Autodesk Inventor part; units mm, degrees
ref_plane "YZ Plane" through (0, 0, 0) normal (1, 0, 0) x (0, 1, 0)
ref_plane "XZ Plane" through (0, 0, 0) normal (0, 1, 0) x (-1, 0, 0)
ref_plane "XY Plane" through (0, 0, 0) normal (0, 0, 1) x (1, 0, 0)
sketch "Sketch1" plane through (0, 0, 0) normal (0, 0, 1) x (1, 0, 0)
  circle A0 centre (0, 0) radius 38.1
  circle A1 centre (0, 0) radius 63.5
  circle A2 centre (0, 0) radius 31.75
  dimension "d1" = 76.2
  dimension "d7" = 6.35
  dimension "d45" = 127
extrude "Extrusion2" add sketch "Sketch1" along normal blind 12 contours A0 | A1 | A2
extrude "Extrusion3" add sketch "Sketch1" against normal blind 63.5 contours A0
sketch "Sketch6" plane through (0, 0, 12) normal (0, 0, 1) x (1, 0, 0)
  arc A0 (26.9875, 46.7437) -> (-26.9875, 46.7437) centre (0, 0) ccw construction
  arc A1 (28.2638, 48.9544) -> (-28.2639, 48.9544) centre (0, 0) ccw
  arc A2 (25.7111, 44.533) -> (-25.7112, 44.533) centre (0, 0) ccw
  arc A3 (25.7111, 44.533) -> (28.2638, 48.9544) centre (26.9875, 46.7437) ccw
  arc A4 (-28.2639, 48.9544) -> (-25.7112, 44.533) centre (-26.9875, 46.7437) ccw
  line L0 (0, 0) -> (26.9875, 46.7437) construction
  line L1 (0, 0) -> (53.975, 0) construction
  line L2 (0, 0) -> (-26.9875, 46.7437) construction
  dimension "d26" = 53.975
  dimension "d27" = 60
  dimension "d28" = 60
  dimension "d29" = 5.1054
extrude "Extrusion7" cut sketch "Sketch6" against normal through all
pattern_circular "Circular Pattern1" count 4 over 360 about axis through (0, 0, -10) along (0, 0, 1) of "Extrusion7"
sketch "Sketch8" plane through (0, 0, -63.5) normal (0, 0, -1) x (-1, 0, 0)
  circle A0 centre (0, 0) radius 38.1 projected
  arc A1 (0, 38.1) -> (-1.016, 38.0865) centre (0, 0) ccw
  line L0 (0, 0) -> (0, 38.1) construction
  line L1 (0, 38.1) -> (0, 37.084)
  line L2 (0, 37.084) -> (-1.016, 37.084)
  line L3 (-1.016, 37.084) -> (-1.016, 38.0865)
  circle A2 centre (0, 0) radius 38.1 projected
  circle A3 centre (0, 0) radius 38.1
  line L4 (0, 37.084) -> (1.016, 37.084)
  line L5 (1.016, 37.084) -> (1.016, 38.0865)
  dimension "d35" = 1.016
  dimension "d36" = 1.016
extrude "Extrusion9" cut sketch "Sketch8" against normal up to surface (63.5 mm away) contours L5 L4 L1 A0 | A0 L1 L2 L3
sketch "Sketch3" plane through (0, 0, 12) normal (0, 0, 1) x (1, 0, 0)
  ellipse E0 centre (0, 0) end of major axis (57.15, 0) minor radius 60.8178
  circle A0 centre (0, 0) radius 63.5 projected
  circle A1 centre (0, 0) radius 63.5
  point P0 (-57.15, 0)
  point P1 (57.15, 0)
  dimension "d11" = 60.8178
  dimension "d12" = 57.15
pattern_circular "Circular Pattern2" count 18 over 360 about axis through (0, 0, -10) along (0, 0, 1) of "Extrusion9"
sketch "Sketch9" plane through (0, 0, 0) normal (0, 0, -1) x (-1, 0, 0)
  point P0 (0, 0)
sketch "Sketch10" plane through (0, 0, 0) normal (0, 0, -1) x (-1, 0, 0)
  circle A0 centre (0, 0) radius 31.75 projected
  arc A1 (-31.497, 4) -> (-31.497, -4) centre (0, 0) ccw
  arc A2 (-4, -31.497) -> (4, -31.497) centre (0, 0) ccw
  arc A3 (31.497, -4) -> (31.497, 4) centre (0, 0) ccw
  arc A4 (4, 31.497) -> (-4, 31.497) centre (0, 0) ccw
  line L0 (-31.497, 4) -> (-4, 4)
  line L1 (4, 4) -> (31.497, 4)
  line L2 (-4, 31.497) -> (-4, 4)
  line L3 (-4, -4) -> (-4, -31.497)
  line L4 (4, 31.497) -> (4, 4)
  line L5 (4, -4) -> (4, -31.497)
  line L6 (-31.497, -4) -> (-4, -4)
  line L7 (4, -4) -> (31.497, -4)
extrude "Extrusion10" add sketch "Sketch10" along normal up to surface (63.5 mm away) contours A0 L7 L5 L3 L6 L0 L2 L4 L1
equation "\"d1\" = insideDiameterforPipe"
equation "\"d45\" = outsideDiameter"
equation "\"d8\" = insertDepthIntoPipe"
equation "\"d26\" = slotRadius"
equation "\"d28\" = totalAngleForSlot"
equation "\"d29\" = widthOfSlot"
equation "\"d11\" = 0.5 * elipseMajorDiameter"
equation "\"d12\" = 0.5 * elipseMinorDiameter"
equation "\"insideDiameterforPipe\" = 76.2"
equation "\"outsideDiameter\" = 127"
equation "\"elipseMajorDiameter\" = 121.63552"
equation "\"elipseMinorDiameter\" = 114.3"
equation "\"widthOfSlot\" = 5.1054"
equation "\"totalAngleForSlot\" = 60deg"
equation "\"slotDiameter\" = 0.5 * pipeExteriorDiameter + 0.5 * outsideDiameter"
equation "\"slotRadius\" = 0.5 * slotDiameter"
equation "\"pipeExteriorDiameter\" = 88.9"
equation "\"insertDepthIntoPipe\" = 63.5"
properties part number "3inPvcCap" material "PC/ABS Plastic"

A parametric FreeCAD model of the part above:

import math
import FreeCAD as App
import Part
import Sketcher
Q = App.Units.Quantity

doc = App.newDocument("Part")
params = doc.addObject("Spreadsheet::Sheet", "Params")
for row, (alias, value) in enumerate([
    ("sketch1_diameter", "5 in"),
    ("pad1_length", "12 mm"),
    ("sketch2_diameter", "3 in"),
    ("sketch2_diameter2", "2.5 in"),
    ("pad2_length", "2.5 in"),
    ("sketch4_radius", "1.5 in"),
    ("pocket2_length", "2.5 in"),
    ("sketch5_radius", "1.25 in"),
    ("pad3_length", "2.5 in"),
], start=1):
    params.set(f"A{row}", alias)
    params.set(f"B{row}", "=" + value)
    params.setAlias(f"B{row}", alias)

body = doc.addObject("PartDesign::Body", "Body")

# Sketch on XY plane
sketch1 = doc.addObject("Sketcher::SketchObject", "Sketch")
body.addObject(sketch1)
sketch1.AttachmentSupport = (doc.XY_Plane, [""])
sketch1.MapMode = "FlatFace"
sketch1.addGeometry(Part.Circle(App.Vector(0, 0, 0), App.Vector(0, 0, 1), 63.5), False)
sketch1.addConstraint(Sketcher.Constraint("Coincident", 0, 3, -1, 1))
sketch1.addConstraint(Sketcher.Constraint("Diameter", 0, Q("5 in")))
sketch1.setExpression("Constraints[1]", "Params.sketch1_diameter")
pad1 = doc.addObject("PartDesign::Pad", "Pad")
body.addObject(pad1)
pad1.Profile = sketch1
pad1.setExpression("Length", "Params.pad1_length")

# Sketch on XY plane
sketch2 = doc.addObject("Sketcher::SketchObject", "Sketch001")
body.addObject(sketch2)
sketch2.AttachmentSupport = (doc.XY_Plane, [""])
sketch2.MapMode = "FlatFace"
sketch2.addGeometry(Part.Circle(App.Vector(0, 0, 0), App.Vector(0, 0, 1), 38.1), False)
sketch2.addGeometry(Part.Circle(App.Vector(0, 0, 0), App.Vector(0, 0, 1), 31.75), False)
sketch2.addConstraint(Sketcher.Constraint("Coincident", 0, 3, -1, 1))
sketch2.addConstraint(Sketcher.Constraint("Coincident", 1, 3, -1, 1))
sketch2.addConstraint(Sketcher.Constraint("Diameter", 0, Q("3 in")))
sketch2.addConstraint(Sketcher.Constraint("Diameter", 1, Q("2.5 in")))
sketch2.setExpression("Constraints[2]", "Params.sketch2_diameter")
sketch2.setExpression("Constraints[3]", "Params.sketch2_diameter2")
pad2 = doc.addObject("PartDesign::Pad", "Pad001")
body.addObject(pad2)
pad2.Profile = sketch2
pad2.setExpression("Length", "Params.pad2_length")
pad2.Reversed = True

# Sketch on XY plane
sketch3 = doc.addObject("Sketcher::SketchObject", "Sketch002")
body.addObject(sketch3)
sketch3.AttachmentSupport = (doc.XY_Plane, [""])
sketch3.MapMode = "FlatFace"
sketch3.AttachmentOffset = App.Placement(App.Vector(0, 0, 12), App.Rotation())
sketch3.addGeometry(Part.ArcOfCircle(Part.Circle(App.Vector(26.9875, 46.7437, 0), App.Vector(0, 0, 1), 2.552722), math.radians(-120.001006), math.radians(60.000938)), False)
sketch3.addGeometry(Part.ArcOfCircle(Part.Circle(App.Vector(0, 0, 0), App.Vector(0, 0, 1), 56.527654), math.radians(60.000032), math.radians(120.000056)), False)
sketch3.addGeometry(Part.ArcOfCircle(Part.Circle(App.Vector(-26.9875, 46.7437, 0), App.Vector(0, 0, 1), 2.552722), math.radians(120.001006), math.radians(299.999062)), False)
sketch3.addGeometry(Part.ArcOfCircle(Part.Circle(App.Vector(0, 0, 0), App.Vector(0, 0, 1), 51.422259), math.radians(60.000038), math.radians(120.000058)), False)
sketch3.addConstraint(Sketcher.Constraint("Tangent", 0, 2, 1, 1))
sketch3.addConstraint(Sketcher.Constraint("Tangent", 1, 2, 2, 1))
sketch3.addConstraint(Sketcher.Constraint("Tangent", 2, 2, 3, 2))
sketch3.addConstraint(Sketcher.Constraint("Tangent", 3, 1, 0, 1))
sketch3.addConstraint(Sketcher.Constraint("Coincident", 1, 3, -1, 1))
sketch3.addConstraint(Sketcher.Constraint("Coincident", 3, 3, -1, 1))
sketch3.addConstraint(Sketcher.Constraint("Horizontal", 0, 3, 2, 3))
sketch3.addConstraint(Sketcher.Constraint("Radius", 0, Q("0.1005 in")))
sketch3.addConstraint(Sketcher.Constraint("DistanceX", 2, 3, 0, 3, Q("2.125 in")))
sketch3.addConstraint(Sketcher.Constraint("Radius", 1, Q("2.2255 in")))
pocket1 = doc.addObject("PartDesign::Pocket", "Pocket")
body.addObject(pocket1)
pocket1.Profile = sketch3
pocket1.Type = "ThroughAll"
doc.recompute()

polarpattern = doc.addObject("PartDesign::PolarPattern", "PolarPattern")
body.addObject(polarpattern)
polarpattern.Originals = [pocket1]
polarpattern.Axis = (doc.Z_Axis, [""])
polarpattern.Angle = 360
polarpattern.Occurrences = 4
body.Tip = polarpattern

# Sketch on XY plane
sketch4 = doc.addObject("Sketcher::SketchObject", "Sketch003")
body.addObject(sketch4)
sketch4.AttachmentSupport = (doc.XY_Plane, [""])
sketch4.MapMode = "FlatFace"
sketch4.AttachmentOffset = App.Placement(App.Vector(0, 0, -2.5 * 25.4), App.Rotation())
sketch4.addGeometry(Part.LineSegment(App.Vector(-1.016, 37.084, 0), App.Vector(-1.016, 38.0865, 0)), False)
sketch4.addGeometry(Part.ArcOfCircle(Part.Circle(App.Vector(0, 0, 0), App.Vector(0, 0, 1), 38.1), math.radians(88.471933), math.radians(91.528067)), False)
sketch4.addGeometry(Part.LineSegment(App.Vector(1.016, 38.0865, 0), App.Vector(1.016, 37.084, 0)), False)
sketch4.addGeometry(Part.LineSegment(App.Vector(1.016, 37.084, 0), App.Vector(-1.016, 37.084, 0)), False)
sketch4.addConstraint(Sketcher.Constraint("Coincident", 0, 2, 1, 2))
sketch4.addConstraint(Sketcher.Constraint("Coincident", 1, 1, 2, 1))
sketch4.addConstraint(Sketcher.Constraint("Coincident", 2, 2, 3, 1))
sketch4.addConstraint(Sketcher.Constraint("Coincident", 3, 2, 0, 1))
sketch4.addConstraint(Sketcher.Constraint("Vertical", 0))
sketch4.addConstraint(Sketcher.Constraint("Vertical", 2))
sketch4.addConstraint(Sketcher.Constraint("Horizontal", 3))
sketch4.addConstraint(Sketcher.Constraint("Coincident", 1, 3, -1, 1))
sketch4.addConstraint(Sketcher.Constraint("Horizontal", 0, 2, 1, 1))
sketch4.addConstraint(Sketcher.Constraint("Radius", 1, Q("1.5 in")))
sketch4.addConstraint(Sketcher.Constraint("DistanceX", 0, 2, -1, 1, Q("0.04 in")))
sketch4.addConstraint(Sketcher.Constraint("DistanceY", -1, 1, 2, 2, Q("1.46 in")))
sketch4.setExpression("Constraints[9]", "Params.sketch4_radius")
pocket2 = doc.addObject("PartDesign::Pocket", "Pocket001")
body.addObject(pocket2)
pocket2.Profile = sketch4
pocket2.setExpression("Length", "Params.pocket2_length")
pocket2.Reversed = True
doc.recompute()

polarpattern2 = doc.addObject("PartDesign::PolarPattern", "PolarPattern001")
body.addObject(polarpattern2)
polarpattern2.Originals = [pocket2]
polarpattern2.Axis = (doc.Z_Axis, [""])
polarpattern2.Angle = 360
polarpattern2.Occurrences = 18
body.Tip = polarpattern2

# Sketch on XY plane
sketch5 = doc.addObject("Sketcher::SketchObject", "Sketch004")
body.addObject(sketch5)
sketch5.AttachmentSupport = (doc.XY_Plane, [""])
sketch5.MapMode = "FlatFace"
sketch5.addGeometry(Part.ArcOfCircle(Part.Circle(App.Vector(0, 0, 0), App.Vector(0, 0, 1), 31.75), math.radians(172.762396), math.radians(187.237604)), False)
sketch5.addGeometry(Part.LineSegment(App.Vector(-31.497, 4, 0), App.Vector(-4, 4, 0)), False)
sketch5.addGeometry(Part.LineSegment(App.Vector(-4, 4, 0), App.Vector(-4, 31.497, 0)), False)
sketch5.addGeometry(Part.ArcOfCircle(Part.Circle(App.Vector(0, 0, 0), App.Vector(0, 0, 1), 31.75), math.radians(82.762396), math.radians(97.237604)), False)
sketch5.addGeometry(Part.LineSegment(App.Vector(4, 31.497, 0), App.Vector(4, 4, 0)), False)
sketch5.addGeometry(Part.LineSegment(App.Vector(4, 4, 0), App.Vector(31.497, 4, 0)), False)
sketch5.addGeometry(Part.ArcOfCircle(Part.Circle(App.Vector(0, 0, 0), App.Vector(0, 0, 1), 31.75), math.radians(-7.237604), math.radians(7.237604)), False)
sketch5.addGeometry(Part.LineSegment(App.Vector(31.497, -4, 0), App.Vector(4, -4, 0)), False)
sketch5.addGeometry(Part.LineSegment(App.Vector(4, -4, 0), App.Vector(4, -31.497, 0)), False)
sketch5.addGeometry(Part.ArcOfCircle(Part.Circle(App.Vector(0, 0, 0), App.Vector(0, 0, 1), 31.75), math.radians(-97.237604), math.radians(-82.762396)), False)
sketch5.addGeometry(Part.LineSegment(App.Vector(-4, -31.497, 0), App.Vector(-4, -4, 0)), False)
sketch5.addGeometry(Part.LineSegment(App.Vector(-4, -4, 0), App.Vector(-31.497, -4, 0)), False)
sketch5.addConstraint(Sketcher.Constraint("Coincident", 0, 1, 1, 1))
sketch5.addConstraint(Sketcher.Constraint("Coincident", 1, 2, 2, 1))
sketch5.addConstraint(Sketcher.Constraint("Coincident", 2, 2, 3, 2))
sketch5.addConstraint(Sketcher.Constraint("Coincident", 3, 1, 4, 1))
sketch5.addConstraint(Sketcher.Constraint("Coincident", 4, 2, 5, 1))
sketch5.addConstraint(Sketcher.Constraint("Coincident", 5, 2, 6, 2))
sketch5.addConstraint(Sketcher.Constraint("Coincident", 6, 1, 7, 1))
sketch5.addConstraint(Sketcher.Constraint("Coincident", 7, 2, 8, 1))
sketch5.addConstraint(Sketcher.Constraint("Coincident", 8, 2, 9, 2))
sketch5.addConstraint(Sketcher.Constraint("Coincident", 9, 1, 10, 1))
sketch5.addConstraint(Sketcher.Constraint("Coincident", 10, 2, 11, 1))
sketch5.addConstraint(Sketcher.Constraint("Coincident", 11, 2, 0, 2))
sketch5.addConstraint(Sketcher.Constraint("Horizontal", 1))
sketch5.addConstraint(Sketcher.Constraint("Vertical", 2))
sketch5.addConstraint(Sketcher.Constraint("Vertical", 4))
sketch5.addConstraint(Sketcher.Constraint("Horizontal", 5))
sketch5.addConstraint(Sketcher.Constraint("Horizontal", 7))
sketch5.addConstraint(Sketcher.Constraint("Vertical", 8))
sketch5.addConstraint(Sketcher.Constraint("Vertical", 10))
sketch5.addConstraint(Sketcher.Constraint("Horizontal", 11))
sketch5.addConstraint(Sketcher.Constraint("Coincident", 0, 3, -1, 1))
sketch5.addConstraint(Sketcher.Constraint("Coincident", 3, 3, -1, 1))
sketch5.addConstraint(Sketcher.Constraint("Coincident", 6, 3, -1, 1))
sketch5.addConstraint(Sketcher.Constraint("Coincident", 9, 3, -1, 1))
sketch5.addConstraint(Sketcher.Constraint("Equal", 0, 3))
sketch5.addConstraint(Sketcher.Constraint("Equal", 3, 6))
sketch5.addConstraint(Sketcher.Constraint("Equal", 6, 9))
sketch5.addConstraint(Sketcher.Constraint("Symmetric", 1, 2, 7, 2, -1, 1))
sketch5.addConstraint(Sketcher.Constraint("Symmetric", 4, 2, 10, 2, -1, 1))
sketch5.addConstraint(Sketcher.Constraint("Symmetric", 1, 2, 4, 2, -2))
sketch5.addConstraint(Sketcher.Constraint("Equal", 11, 2))
sketch5.addConstraint(Sketcher.Constraint("Radius", 0, Q("1.25 in")))
sketch5.addConstraint(Sketcher.Constraint("DistanceX", 1, 1, 1, 2, 27.497))
sketch5.setExpression("Constraints[31]", "Params.sketch5_radius")
pad3 = doc.addObject("PartDesign::Pad", "Pad002")
body.addObject(pad3)
pad3.Profile = sketch5
pad3.setExpression("Length", "Params.pad3_length")
pad3.Reversed = True

doc.recompute()
